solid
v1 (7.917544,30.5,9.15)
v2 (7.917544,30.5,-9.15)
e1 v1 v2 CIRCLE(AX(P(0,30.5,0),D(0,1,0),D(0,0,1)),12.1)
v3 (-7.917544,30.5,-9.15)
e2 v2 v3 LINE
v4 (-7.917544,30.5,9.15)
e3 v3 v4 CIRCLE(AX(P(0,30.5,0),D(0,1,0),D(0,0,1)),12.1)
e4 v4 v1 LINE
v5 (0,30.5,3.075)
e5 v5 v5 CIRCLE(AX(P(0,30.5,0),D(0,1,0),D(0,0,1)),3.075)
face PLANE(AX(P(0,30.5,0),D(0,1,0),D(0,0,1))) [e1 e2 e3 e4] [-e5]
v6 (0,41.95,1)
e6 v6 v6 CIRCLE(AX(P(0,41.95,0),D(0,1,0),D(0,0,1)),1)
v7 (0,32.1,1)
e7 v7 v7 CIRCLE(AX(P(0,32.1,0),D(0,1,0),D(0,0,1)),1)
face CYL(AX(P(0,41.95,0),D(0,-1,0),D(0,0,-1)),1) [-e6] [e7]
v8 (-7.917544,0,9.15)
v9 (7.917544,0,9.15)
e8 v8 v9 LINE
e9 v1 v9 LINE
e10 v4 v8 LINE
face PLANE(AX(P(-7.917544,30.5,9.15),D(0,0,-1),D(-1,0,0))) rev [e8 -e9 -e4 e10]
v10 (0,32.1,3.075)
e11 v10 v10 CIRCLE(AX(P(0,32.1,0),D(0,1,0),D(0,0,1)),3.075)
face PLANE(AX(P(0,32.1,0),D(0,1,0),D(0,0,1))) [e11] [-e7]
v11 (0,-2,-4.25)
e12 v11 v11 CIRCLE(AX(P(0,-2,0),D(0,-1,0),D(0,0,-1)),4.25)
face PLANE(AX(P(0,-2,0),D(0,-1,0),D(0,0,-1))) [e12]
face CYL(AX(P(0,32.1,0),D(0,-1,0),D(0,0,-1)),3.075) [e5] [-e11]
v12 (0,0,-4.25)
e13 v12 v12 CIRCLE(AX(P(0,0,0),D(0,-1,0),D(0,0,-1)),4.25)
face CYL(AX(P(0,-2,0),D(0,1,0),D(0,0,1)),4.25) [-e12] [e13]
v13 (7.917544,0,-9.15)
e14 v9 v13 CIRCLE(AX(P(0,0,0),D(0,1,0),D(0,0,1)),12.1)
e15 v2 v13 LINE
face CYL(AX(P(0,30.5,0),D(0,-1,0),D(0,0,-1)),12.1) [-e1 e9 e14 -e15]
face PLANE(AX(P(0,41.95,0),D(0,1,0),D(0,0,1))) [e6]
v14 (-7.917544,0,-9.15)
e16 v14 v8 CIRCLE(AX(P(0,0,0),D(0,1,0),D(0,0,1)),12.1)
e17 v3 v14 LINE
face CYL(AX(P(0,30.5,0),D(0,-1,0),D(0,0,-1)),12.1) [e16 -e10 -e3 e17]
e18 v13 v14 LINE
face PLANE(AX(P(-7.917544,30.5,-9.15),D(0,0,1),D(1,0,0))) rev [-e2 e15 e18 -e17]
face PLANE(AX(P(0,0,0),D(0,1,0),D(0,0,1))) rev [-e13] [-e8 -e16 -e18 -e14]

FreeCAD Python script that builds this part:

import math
import FreeCAD as App
import Part
import Sketcher
Q = App.Units.Quantity

doc = App.newDocument("Part")
body = doc.addObject("PartDesign::Body", "Body")

# Sketch on XZ plane
sketch1 = doc.addObject("Sketcher::SketchObject", "Sketch")
body.addObject(sketch1)
sketch1.AttachmentSupport = (doc.XZ_Plane, [""])
sketch1.MapMode = "FlatFace"
sketch1.addGeometry([
    Part.LineSegment(App.Vector(8, -9, 0), App.Vector(-8, -9, 0)),
    Part.ArcOfCircle(Part.Circle(App.Vector(0, 0, 0), App.Vector(0, 0, 1), 12), math.radians(131), math.radians(229)),
    Part.LineSegment(App.Vector(-8, 9, 0), App.Vector(8, 9, 0)),
    Part.ArcOfCircle(Part.Circle(App.Vector(0, 0, 0), App.Vector(0, 0, 1), 12), math.radians(-49), math.radians(49)),
], False)
sketch1.addConstraint([
    Sketcher.Constraint("Coincident", 0, 2, 1, 2),
    Sketcher.Constraint("Coincident", 1, 1, 2, 1),
    Sketcher.Constraint("Coincident", 2, 2, 3, 2),
    Sketcher.Constraint("Coincident", 3, 1, 0, 1),
    Sketcher.Constraint("Horizontal", 0),
    Sketcher.Constraint("Horizontal", 2),
    Sketcher.Constraint("Coincident", 1, 3, -1, 1),
    Sketcher.Constraint("Coincident", 3, 3, -1, 1),
    Sketcher.Constraint("Equal", 1, 3),
    Sketcher.Constraint("Vertical", 0, 2, 1, 1),
    Sketcher.Constraint("Radius", 1, Q("12.1 mm")),
    Sketcher.Constraint("DistanceY", 0, 2, 1, 1, Q("18.3 mm")),
])
pad1 = doc.addObject("PartDesign::Pad", "Pad")
body.addObject(pad1)
pad1.Profile = sketch1
pad1.Length = 30.5
pad1.Reversed = True

# Sketch on XZ plane
sketch2 = doc.addObject("Sketcher::SketchObject", "Sketch001")
body.addObject(sketch2)
sketch2.AttachmentSupport = (doc.XZ_Plane, [""])
sketch2.MapMode = "FlatFace"
sketch2.AttachmentOffset = App.Placement(App.Vector(0, 0, -30.5), App.Rotation())
sketch2.addGeometry(Part.Circle(App.Vector(0, 0, 0), App.Vector(0, 0, 1), 3.1), False)
sketch2.addConstraint([
    Sketcher.Constraint("Coincident", 0, 3, -1, 1),
    Sketcher.Constraint("Diameter", 0, Q("6.15 mm")),
])
pad2 = doc.addObject("PartDesign::Pad", "Pad001")
body.addObject(pad2)
pad2.Profile = sketch2
pad2.Length = 1.6
pad2.Reversed = True

# Sketch on XZ plane
sketch3 = doc.addObject("Sketcher::SketchObject", "Sketch002")
body.addObject(sketch3)
sketch3.AttachmentSupport = (doc.XZ_Plane, [""])
sketch3.MapMode = "FlatFace"
sketch3.AttachmentOffset = App.Placement(App.Vector(0, 0, -32.1), App.Rotation())
sketch3.addGeometry(Part.Circle(App.Vector(0, 0, 0), App.Vector(0, 0, 1), 1), False)
sketch3.addConstraint([
    Sketcher.Constraint("Coincident", 0, 3, -1, 1),
    Sketcher.Constraint("Diameter", 0, Q("2 mm")),
])
pad3 = doc.addObject("PartDesign::Pad", "Pad002")
body.addObject(pad3)
pad3.Profile = sketch3
pad3.Length = 9.85
pad3.Reversed = True

# Sketch on XZ plane
sketch4 = doc.addObject("Sketcher::SketchObject", "Sketch003")
body.addObject(sketch4)
sketch4.AttachmentSupport = (doc.XZ_Plane, [""])
sketch4.MapMode = "FlatFace"
sketch4.addGeometry(Part.Circle(App.Vector(0, 0, 0), App.Vector(0, 0, 1), 4.2), False)
sketch4.addConstraint([
    Sketcher.Constraint("Coincident", 0, 3, -1, 1),
    Sketcher.Constraint("Diameter", 0, Q("8.5 mm")),
])
pad4 = doc.addObject("PartDesign::Pad", "Pad003")
body.addObject(pad4)
pad4.Profile = sketch4
pad4.Length = 2

doc.recompute()
